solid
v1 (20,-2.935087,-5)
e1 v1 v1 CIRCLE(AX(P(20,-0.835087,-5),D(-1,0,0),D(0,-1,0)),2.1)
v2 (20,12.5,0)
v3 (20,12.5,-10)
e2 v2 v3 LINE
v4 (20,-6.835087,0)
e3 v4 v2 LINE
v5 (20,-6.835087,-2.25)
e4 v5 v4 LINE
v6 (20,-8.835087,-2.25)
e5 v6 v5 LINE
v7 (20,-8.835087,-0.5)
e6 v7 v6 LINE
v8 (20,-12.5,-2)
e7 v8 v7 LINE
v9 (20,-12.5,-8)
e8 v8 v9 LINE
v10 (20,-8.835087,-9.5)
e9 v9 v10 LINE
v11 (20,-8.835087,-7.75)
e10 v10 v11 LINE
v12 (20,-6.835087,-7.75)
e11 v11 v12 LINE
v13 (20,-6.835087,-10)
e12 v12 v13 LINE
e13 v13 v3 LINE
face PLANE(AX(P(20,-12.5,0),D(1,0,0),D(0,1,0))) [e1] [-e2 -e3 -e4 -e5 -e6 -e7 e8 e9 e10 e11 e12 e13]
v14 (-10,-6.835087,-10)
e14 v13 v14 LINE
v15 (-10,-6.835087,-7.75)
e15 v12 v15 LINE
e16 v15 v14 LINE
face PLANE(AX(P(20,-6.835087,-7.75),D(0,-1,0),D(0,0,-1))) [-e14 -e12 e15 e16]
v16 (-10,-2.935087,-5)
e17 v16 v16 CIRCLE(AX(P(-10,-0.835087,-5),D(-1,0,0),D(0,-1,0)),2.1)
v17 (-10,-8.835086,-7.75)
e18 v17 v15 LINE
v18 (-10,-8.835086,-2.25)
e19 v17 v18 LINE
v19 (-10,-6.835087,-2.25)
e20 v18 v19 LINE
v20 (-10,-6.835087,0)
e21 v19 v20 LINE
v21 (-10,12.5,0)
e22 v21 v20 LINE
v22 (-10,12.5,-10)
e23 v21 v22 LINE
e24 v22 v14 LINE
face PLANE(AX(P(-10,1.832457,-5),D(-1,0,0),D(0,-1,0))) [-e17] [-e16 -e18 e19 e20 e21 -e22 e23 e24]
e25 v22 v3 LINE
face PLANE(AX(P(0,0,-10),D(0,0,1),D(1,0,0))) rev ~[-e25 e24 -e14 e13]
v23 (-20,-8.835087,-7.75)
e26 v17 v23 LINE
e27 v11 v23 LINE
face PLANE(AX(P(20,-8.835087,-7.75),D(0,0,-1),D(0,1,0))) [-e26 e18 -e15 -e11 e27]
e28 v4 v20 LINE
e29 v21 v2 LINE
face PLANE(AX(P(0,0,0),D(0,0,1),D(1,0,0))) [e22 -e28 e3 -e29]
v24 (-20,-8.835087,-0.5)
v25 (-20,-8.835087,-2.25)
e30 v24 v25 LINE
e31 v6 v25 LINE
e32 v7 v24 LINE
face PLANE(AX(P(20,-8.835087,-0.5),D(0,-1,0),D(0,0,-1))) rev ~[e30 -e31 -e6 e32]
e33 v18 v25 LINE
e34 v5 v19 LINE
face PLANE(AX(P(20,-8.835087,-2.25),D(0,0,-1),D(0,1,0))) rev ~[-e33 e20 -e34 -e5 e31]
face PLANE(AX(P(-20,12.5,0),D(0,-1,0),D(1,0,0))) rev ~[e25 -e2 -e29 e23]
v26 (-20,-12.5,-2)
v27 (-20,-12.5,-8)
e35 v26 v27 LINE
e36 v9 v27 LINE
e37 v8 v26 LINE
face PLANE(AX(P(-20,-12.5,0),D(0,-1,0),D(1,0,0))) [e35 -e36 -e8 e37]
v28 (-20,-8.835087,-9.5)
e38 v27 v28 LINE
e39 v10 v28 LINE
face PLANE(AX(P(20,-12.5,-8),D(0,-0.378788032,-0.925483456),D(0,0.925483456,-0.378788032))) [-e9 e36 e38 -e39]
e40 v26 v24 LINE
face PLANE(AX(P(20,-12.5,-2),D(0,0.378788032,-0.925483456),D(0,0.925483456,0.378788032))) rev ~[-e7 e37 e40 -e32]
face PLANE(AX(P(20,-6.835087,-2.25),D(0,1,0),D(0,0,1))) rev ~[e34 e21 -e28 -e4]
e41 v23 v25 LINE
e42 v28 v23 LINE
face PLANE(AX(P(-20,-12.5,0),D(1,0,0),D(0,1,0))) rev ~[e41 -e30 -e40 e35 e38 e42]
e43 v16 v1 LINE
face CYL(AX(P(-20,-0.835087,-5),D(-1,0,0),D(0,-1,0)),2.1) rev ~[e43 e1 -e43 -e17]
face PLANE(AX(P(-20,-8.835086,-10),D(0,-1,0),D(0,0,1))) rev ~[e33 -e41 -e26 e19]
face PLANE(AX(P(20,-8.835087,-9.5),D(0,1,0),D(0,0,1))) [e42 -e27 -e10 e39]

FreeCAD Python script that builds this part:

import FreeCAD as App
import Part
import Sketcher

V = App.Vector
Q = App.Units.Quantity

doc = App.newDocument("Part")
params = doc.addObject("Spreadsheet::Sheet", "Params")
for row, (alias, value) in enumerate([
    ("sketch1_width", "40 mm"),
    ("sketch1_height", "25 mm"),
    ("pad1_length", "10 mm"),
    ("sketch2_width", "2 mm"),
    ("sketch2_height", "1.75 mm"),
    ("sketch2_length", "3.959998 mm"),
    ("sketch3_diameter", "4.2 mm"),
    ("sketch4_height", "10 mm"),
    ("pocket3_length", "10 mm"),
], start=1):
    params.set(f"A{row}", alias)
    params.set(f"B{row}", "=" + value)
    params.setAlias(f"B{row}", alias)

body = doc.addObject("PartDesign::Body", "Body")

# Sketch on XY plane
sketch1 = doc.addObject("Sketcher::SketchObject", "Sketch")
body.addObject(sketch1)
sketch1.AttachmentSupport = (doc.XY_Plane, [""])
sketch1.MapMode = "FlatFace"
sketch1.addGeometry(Part.LineSegment(V(-20, 12.5, 0), V(-20, -12.5, 0)), False)
sketch1.addGeometry(Part.LineSegment(V(-20, -12.5, 0), V(20, -12.5, 0)), False)
sketch1.addGeometry(Part.LineSegment(V(20, -12.5, 0), V(20, 12.5, 0)), False)
sketch1.addGeometry(Part.LineSegment(V(20, 12.5, 0), V(-20, 12.5, 0)), False)
sketch1.addConstraint(Sketcher.Constraint("Coincident", 0, 2, 1, 1))
sketch1.addConstraint(Sketcher.Constraint("Coincident", 1, 2, 2, 1))
sketch1.addConstraint(Sketcher.Constraint("Coincident", 2, 2, 3, 1))
sketch1.addConstraint(Sketcher.Constraint("Coincident", 3, 2, 0, 1))
sketch1.addConstraint(Sketcher.Constraint("Vertical", 0))
sketch1.addConstraint(Sketcher.Constraint("Horizontal", 1))
sketch1.addConstraint(Sketcher.Constraint("Vertical", 2))
sketch1.addConstraint(Sketcher.Constraint("Horizontal", 3))
sketch1.addConstraint(Sketcher.Constraint("Symmetric", 0, 2, 2, 2, -1, 1))
sketch1.addConstraint(Sketcher.Constraint("DistanceX", 1, 1, 1, 2, Q("40 mm")))
sketch1.addConstraint(Sketcher.Constraint("DistanceY", 0, 2, 0, 1, Q("25 mm")))
sketch1.setExpression("Constraints[9]", "Params.sketch1_width")
sketch1.setExpression("Constraints[10]", "Params.sketch1_height")
pad1 = doc.addObject("PartDesign::Pad", "Pad")
body.addObject(pad1)
pad1.Profile = sketch1
pad1.setExpression("Length", "Params.pad1_length")
pad1.Reversed = True

# Sketch on YZ plane
sketch2 = doc.addObject("Sketcher::SketchObject", "Sketch001")
body.addObject(sketch2)
sketch2.AttachmentSupport = (doc.YZ_Plane, [""])
sketch2.MapMode = "FlatFace"
sketch2.AttachmentOffset = App.Placement(V(0, 0, 20), App.Rotation())
sketch2.addGeometry(Part.LineSegment(V(-8.835087, -0.5, 0), V(-8.835087, -2.25, 0)), False)
sketch2.addGeometry(Part.LineSegment(V(-8.835087, -2.25, 0), V(-6.835087, -2.25, 0)), False)
sketch2.addGeometry(Part.LineSegment(V(-6.835087, -2.25, 0), V(-6.835087, 0, 0)), False)
sketch2.addGeometry(Part.LineSegment(V(-6.835087, 0, 0), V(-12.5, 0, 0)), False)
sketch2.addGeometry(Part.LineSegment(V(-12.5, 0, 0), V(-12.5, -2, 0)), False)
sketch2.addGeometry(Part.LineSegment(V(-12.5, -2, 0), V(-8.835087, -0.5, 0)), False)
sketch2.addGeometry(Part.LineSegment(V(-8.835087, -7.75, 0), V(-8.835087, -9.5, 0)), False)
sketch2.addGeometry(Part.LineSegment(V(-8.835087, -9.5, 0), V(-12.5, -8, 0)), False)
sketch2.addGeometry(Part.LineSegment(V(-12.5, -8, 0), V(-12.5, -10, 0)), False)
sketch2.addGeometry(Part.LineSegment(V(-12.5, -10, 0), V(-6.835087, -10, 0)), False)
sketch2.addGeometry(Part.LineSegment(V(-6.835087, -10, 0), V(-6.835087, -7.75, 0)), False)
sketch2.addGeometry(Part.LineSegment(V(-6.835087, -7.75, 0), V(-8.835087, -7.75, 0)), False)
sketch2.addConstraint(Sketcher.Constraint("Coincident", 0, 2, 1, 1))
sketch2.addConstraint(Sketcher.Constraint("Coincident", 1, 2, 2, 1))
sketch2.addConstraint(Sketcher.Constraint("Coincident", 2, 2, 3, 1))
sketch2.addConstraint(Sketcher.Constraint("Coincident", 3, 2, 4, 1))
sketch2.addConstraint(Sketcher.Constraint("Coincident", 4, 2, 5, 1))
sketch2.addConstraint(Sketcher.Constraint("Coincident", 5, 2, 0, 1))
sketch2.addConstraint(Sketcher.Constraint("Coincident", 6, 2, 7, 1))
sketch2.addConstraint(Sketcher.Constraint("Coincident", 7, 2, 8, 1))
sketch2.addConstraint(Sketcher.Constraint("Coincident", 8, 2, 9, 1))
sketch2.addConstraint(Sketcher.Constraint("Coincident", 9, 2, 10, 1))
sketch2.addConstraint(Sketcher.Constraint("Coincident", 10, 2, 11, 1))
sketch2.addConstraint(Sketcher.Constraint("Coincident", 11, 2, 6, 1))
sketch2.addConstraint(Sketcher.Constraint("Vertical", 0))
sketch2.addConstraint(Sketcher.Constraint("Horizontal", 1))
sketch2.addConstraint(Sketcher.Constraint("Vertical", 2))
sketch2.addConstraint(Sketcher.Constraint("Horizontal", 3))
sketch2.addConstraint(Sketcher.Constraint("Vertical", 4))
sketch2.addConstraint(Sketcher.Constraint("Vertical", 6))
sketch2.addConstraint(Sketcher.Constraint("Vertical", 8))
sketch2.addConstraint(Sketcher.Constraint("Horizontal", 9))
sketch2.addConstraint(Sketcher.Constraint("Vertical", 10))
sketch2.addConstraint(Sketcher.Constraint("Horizontal", 11))
sketch2.addConstraint(Sketcher.Constraint("PointOnObject", 2, 2, -1))
sketch2.addConstraint(Sketcher.Constraint("Vertical", 5, 2, 6, 2))
sketch2.addConstraint(Sketcher.Constraint("Vertical", 4, 2, 7, 2))
sketch2.addConstraint(Sketcher.Constraint("Vertical", 2, 2, 9, 2))
sketch2.addConstraint(Sketcher.Constraint("Equal", 11, 4))
sketch2.addConstraint(Sketcher.Constraint("Equal", 0, 6))
sketch2.addConstraint(Sketcher.Constraint("Equal", 4, 8))
sketch2.addConstraint(Sketcher.Constraint("Equal", 2, 10))
sketch2.addConstraint(Sketcher.Constraint("DistanceX", 1, 1, 1, 2, Q("2 mm")))
sketch2.addConstraint(Sketcher.Constraint("DistanceY", 7, 2, -1, 1, Q("8 mm")))
sketch2.addConstraint(Sketcher.Constraint("DistanceY", 6, 2, 5, 2, Q("9 mm")))
sketch2.addConstraint(Sketcher.Constraint("DistanceY", 0, 2, 0, 1, Q("1.75 mm")))
sketch2.addConstraint(Sketcher.Constraint("DistanceX", 3, 2, -1, 1, Q("12.5 mm")))
sketch2.addConstraint(Sketcher.Constraint("Distance", 5, Q("3.959998 mm")))
sketch2.setExpression("Constraints[30]", "Params.sketch2_width")
sketch2.setExpression("Constraints[33]", "Params.sketch2_height")
sketch2.setExpression("Constraints[35]", "Params.sketch2_length")
pocket1 = doc.addObject("PartDesign::Pocket", "Pocket")
body.addObject(pocket1)
pocket1.Profile = sketch2
pocket1.Type = "ThroughAll"

# Sketch on YZ plane
sketch3 = doc.addObject("Sketcher::SketchObject", "Sketch002")
body.addObject(sketch3)
sketch3.AttachmentSupport = (doc.YZ_Plane, [""])
sketch3.MapMode = "FlatFace"
sketch3.AttachmentOffset = App.Placement(V(0, 0, -20), App.Rotation())
sketch3.addGeometry(Part.Circle(V(-0.835087, -5, 0), V(0, 0, 1), 2.1), False)
sketch3.addConstraint(Sketcher.Constraint("Diameter", 0, Q("4.2 mm")))
sketch3.addConstraint(Sketcher.Constraint("DistanceY", 0, 3, -1, 1, Q("5 mm")))
sketch3.addConstraint(Sketcher.Constraint("DistanceX", 0, 3, -1, 1, Q("0.835087 mm")))
sketch3.setExpression("Constraints[0]", "Params.sketch3_diameter")
pocket2 = doc.addObject("PartDesign::Pocket", "Pocket001")
body.addObject(pocket2)
pocket2.Profile = sketch3
pocket2.Type = "ThroughAll"
pocket2.Reversed = True

# Sketch on YZ plane
sketch4 = doc.addObject("Sketcher::SketchObject", "Sketch003")
body.addObject(sketch4)
sketch4.AttachmentSupport = (doc.YZ_Plane, [""])
sketch4.MapMode = "FlatFace"
sketch4.AttachmentOffset = App.Placement(V(0, 0, -20), App.Rotation())
sketch4.addGeometry(Part.LineSegment(V(12.500001, 0, 0), V(12.500001, -10, 0)), False)
sketch4.addGeometry(Part.LineSegment(V(12.500001, -10, 0), V(-8.835086, -10, 0)), False)
sketch4.addGeometry(Part.LineSegment(V(-8.835086, -10, 0), V(-8.835086, 0, 0)), False)
sketch4.addGeometry(Part.LineSegment(V(-8.835086, 0, 0), V(12.500001, 0, 0)), False)
sketch4.addConstraint(Sketcher.Constraint("Coincident", 0, 2, 1, 1))
sketch4.addConstraint(Sketcher.Constraint("Coincident", 1, 2, 2, 1))
sketch4.addConstraint(Sketcher.Constraint("Coincident", 2, 2, 3, 1))
sketch4.addConstraint(Sketcher.Constraint("Coincident", 3, 2, 0, 1))
sketch4.addConstraint(Sketcher.Constraint("Vertical", 0))
sketch4.addConstraint(Sketcher.Constraint("Horizontal", 1))
sketch4.addConstraint(Sketcher.Constraint("Vertical", 2))
sketch4.addConstraint(Sketcher.Constraint("Horizontal", 3))
sketch4.addConstraint(Sketcher.Constraint("PointOnObject", 2, 2, -1))
sketch4.addConstraint(Sketcher.Constraint("DistanceY", 0, 2, 0, 1, Q("10 mm")))
sketch4.addConstraint(Sketcher.Constraint("DistanceX", -1, 1, 0, 2, Q("12.500001 mm")))
sketch4.addConstraint(Sketcher.Constraint("DistanceX", 1, 2, 1, 1, Q("21.335087 mm")))
sketch4.setExpression("Constraints[9]", "Params.sketch4_height")
pocket3 = doc.addObject("PartDesign::Pocket", "Pocket002")
body.addObject(pocket3)
pocket3.Profile = sketch4
pocket3.setExpression("Length", "Params.pocket3_length")
pocket3.Reversed = True

doc.recompute()
